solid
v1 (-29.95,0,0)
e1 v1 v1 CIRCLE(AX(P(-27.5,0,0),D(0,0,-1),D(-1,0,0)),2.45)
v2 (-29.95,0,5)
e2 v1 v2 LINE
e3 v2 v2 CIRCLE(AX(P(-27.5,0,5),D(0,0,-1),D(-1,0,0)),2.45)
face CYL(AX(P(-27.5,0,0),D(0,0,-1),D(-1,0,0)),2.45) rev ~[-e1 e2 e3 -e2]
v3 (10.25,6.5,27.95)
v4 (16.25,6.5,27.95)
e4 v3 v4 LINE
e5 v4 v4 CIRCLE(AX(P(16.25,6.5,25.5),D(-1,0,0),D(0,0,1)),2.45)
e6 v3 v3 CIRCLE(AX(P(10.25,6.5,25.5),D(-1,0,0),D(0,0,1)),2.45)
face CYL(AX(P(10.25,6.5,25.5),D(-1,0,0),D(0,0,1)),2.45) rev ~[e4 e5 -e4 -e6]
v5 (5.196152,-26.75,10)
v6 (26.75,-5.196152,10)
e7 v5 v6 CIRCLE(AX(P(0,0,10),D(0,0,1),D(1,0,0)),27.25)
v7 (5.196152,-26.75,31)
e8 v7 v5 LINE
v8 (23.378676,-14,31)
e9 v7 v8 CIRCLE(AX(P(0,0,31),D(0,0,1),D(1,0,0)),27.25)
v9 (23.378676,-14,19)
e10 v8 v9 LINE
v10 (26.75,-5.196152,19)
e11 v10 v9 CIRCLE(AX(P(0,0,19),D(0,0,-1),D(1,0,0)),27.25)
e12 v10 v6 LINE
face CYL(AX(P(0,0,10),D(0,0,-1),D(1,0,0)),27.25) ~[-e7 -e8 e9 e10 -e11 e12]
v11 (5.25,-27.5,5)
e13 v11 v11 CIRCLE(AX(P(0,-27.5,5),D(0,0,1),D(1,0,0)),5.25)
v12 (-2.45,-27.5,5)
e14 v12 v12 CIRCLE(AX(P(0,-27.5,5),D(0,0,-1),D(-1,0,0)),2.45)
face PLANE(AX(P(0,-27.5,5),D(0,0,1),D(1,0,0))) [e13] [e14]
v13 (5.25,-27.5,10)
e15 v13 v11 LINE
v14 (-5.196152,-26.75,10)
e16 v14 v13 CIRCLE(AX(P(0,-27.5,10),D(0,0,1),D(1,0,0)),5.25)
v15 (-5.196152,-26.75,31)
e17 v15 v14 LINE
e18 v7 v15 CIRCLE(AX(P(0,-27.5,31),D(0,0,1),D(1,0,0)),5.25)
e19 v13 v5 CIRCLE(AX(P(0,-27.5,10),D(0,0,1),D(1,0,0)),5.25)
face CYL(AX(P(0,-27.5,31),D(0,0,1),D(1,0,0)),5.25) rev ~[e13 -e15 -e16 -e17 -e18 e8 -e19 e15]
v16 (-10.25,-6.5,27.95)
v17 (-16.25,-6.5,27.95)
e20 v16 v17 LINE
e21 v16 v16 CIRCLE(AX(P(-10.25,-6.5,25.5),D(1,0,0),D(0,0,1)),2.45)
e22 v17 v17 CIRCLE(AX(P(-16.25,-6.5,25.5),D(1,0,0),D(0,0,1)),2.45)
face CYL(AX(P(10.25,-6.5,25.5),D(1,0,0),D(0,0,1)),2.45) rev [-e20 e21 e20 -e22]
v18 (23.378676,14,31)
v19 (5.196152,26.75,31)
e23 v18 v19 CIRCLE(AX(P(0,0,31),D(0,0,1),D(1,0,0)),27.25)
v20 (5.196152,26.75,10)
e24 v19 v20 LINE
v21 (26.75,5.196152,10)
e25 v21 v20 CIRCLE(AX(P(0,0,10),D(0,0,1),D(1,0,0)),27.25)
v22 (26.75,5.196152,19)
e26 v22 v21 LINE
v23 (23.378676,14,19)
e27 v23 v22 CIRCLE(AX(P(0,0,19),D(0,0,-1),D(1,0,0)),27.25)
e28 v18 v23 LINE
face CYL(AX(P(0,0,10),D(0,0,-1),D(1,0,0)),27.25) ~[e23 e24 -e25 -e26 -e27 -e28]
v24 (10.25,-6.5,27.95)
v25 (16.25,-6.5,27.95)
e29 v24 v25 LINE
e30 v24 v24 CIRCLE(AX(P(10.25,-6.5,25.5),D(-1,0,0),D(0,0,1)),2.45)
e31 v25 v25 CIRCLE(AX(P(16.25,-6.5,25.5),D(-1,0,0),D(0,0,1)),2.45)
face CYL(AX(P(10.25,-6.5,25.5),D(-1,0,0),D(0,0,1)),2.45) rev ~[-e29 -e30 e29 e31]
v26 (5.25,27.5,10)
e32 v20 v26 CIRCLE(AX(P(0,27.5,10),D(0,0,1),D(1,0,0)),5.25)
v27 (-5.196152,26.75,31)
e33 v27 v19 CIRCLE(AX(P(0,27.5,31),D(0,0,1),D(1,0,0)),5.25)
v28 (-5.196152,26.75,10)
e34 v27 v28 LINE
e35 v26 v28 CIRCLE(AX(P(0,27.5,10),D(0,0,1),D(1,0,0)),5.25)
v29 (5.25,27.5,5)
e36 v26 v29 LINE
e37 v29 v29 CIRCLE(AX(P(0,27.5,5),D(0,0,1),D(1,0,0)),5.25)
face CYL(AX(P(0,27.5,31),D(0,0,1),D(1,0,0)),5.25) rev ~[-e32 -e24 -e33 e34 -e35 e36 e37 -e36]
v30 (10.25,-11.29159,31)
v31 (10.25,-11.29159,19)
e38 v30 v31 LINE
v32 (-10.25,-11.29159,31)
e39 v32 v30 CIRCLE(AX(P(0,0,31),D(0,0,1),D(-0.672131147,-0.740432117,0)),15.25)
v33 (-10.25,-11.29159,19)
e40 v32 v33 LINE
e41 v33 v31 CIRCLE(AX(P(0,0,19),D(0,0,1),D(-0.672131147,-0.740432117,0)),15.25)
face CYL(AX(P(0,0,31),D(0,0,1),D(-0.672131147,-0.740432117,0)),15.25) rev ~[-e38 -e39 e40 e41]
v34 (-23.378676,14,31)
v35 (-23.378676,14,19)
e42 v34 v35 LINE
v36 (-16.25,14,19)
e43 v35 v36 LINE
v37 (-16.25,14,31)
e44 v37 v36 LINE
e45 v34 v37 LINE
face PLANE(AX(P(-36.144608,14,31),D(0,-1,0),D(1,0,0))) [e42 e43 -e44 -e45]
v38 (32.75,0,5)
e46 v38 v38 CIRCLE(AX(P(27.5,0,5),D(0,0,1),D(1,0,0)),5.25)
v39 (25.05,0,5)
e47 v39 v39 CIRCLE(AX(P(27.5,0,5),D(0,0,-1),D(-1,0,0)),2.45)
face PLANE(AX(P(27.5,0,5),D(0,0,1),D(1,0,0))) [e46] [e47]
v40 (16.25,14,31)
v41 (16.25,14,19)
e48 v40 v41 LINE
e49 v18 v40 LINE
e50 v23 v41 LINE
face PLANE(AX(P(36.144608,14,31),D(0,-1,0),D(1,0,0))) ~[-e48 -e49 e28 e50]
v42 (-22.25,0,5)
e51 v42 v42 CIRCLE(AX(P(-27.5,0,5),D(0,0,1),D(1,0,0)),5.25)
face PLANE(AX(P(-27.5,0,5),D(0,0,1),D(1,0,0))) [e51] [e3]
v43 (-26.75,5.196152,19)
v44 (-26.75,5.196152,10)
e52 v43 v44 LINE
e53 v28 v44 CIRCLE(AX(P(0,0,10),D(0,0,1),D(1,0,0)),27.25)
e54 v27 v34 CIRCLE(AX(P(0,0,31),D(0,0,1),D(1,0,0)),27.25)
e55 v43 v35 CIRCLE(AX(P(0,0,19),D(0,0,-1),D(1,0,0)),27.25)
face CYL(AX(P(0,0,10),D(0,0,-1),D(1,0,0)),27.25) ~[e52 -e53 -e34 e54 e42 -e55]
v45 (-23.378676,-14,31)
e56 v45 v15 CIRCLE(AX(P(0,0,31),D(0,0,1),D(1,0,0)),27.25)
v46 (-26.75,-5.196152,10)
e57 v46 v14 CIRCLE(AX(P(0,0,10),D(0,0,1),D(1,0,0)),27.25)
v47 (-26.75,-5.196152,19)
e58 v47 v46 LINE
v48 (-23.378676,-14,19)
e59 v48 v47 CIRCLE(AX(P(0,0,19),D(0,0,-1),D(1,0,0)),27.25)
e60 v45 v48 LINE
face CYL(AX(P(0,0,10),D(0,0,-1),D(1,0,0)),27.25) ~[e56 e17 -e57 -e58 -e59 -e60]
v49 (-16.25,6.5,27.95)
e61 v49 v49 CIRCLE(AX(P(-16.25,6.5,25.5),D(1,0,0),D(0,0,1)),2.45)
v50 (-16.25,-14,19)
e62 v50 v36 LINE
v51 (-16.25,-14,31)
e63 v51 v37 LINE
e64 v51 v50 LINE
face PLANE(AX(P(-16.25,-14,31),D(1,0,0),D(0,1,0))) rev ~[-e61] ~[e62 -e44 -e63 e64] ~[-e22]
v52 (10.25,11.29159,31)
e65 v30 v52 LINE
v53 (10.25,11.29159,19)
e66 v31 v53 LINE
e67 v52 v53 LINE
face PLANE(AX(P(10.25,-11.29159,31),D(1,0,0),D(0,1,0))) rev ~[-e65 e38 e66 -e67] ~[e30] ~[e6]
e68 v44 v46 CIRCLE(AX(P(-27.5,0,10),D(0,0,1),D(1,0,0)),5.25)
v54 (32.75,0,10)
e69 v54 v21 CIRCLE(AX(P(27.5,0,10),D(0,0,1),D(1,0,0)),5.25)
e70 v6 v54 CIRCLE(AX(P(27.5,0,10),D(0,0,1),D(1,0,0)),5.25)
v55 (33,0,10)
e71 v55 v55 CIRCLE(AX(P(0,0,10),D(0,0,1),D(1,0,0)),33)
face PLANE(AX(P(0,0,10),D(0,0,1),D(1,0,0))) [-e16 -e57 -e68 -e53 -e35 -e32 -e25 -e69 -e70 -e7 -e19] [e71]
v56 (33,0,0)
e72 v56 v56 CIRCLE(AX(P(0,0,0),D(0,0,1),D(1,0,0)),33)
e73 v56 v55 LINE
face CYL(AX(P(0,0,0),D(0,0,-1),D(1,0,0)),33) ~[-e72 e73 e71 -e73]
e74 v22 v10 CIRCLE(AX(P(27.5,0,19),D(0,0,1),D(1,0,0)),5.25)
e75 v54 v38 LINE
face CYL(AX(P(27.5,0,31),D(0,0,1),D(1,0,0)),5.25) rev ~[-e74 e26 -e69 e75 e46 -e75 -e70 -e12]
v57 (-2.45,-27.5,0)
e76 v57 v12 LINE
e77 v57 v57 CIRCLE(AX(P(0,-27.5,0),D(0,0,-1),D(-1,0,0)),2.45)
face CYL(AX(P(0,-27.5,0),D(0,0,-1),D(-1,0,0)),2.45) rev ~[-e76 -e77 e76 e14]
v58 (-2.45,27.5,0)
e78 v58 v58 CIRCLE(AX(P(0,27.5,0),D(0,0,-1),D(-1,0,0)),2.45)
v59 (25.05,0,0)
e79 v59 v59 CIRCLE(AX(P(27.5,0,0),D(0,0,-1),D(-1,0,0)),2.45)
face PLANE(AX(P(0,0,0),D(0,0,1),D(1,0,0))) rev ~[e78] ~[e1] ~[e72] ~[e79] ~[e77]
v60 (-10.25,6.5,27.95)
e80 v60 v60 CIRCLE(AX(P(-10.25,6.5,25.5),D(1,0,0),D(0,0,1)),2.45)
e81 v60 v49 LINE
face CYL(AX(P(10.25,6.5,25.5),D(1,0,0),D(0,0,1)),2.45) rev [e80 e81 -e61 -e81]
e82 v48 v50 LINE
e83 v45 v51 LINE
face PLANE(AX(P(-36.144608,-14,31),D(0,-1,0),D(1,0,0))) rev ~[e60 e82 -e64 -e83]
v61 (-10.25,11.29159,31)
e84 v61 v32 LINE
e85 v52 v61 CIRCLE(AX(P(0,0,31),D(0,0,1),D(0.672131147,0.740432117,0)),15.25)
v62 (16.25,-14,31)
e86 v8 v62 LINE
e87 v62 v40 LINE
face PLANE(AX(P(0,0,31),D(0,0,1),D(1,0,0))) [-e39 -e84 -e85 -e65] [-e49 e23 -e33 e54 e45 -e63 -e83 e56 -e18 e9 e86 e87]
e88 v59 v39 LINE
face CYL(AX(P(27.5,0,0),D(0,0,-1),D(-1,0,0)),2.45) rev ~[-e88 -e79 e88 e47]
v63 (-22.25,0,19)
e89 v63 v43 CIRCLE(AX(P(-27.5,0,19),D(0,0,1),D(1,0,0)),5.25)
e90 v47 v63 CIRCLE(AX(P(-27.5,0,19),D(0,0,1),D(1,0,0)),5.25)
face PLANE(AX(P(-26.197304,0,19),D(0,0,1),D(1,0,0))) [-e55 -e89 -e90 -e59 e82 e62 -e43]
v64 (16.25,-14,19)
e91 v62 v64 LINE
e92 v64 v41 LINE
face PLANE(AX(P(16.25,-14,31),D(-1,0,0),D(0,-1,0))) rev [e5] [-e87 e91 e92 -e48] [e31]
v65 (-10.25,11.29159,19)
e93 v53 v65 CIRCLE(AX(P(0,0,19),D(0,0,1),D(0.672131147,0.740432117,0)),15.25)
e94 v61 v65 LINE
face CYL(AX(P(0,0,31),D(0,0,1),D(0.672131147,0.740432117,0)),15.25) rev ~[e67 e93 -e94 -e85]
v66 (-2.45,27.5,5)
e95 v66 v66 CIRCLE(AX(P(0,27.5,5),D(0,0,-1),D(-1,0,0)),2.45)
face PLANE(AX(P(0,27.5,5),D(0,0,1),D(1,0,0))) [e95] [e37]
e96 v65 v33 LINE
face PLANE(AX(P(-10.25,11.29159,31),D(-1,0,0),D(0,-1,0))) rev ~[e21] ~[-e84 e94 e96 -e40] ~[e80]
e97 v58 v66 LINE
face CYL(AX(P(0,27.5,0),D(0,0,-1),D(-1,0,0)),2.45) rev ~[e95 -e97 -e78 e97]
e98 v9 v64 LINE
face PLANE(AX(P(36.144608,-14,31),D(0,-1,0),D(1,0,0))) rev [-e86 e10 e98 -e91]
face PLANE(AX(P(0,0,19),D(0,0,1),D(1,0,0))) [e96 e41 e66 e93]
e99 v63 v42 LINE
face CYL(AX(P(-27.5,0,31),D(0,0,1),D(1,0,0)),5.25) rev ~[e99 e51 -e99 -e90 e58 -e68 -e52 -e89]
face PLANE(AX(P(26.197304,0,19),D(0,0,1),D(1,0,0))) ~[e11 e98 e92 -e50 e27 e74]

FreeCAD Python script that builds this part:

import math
import FreeCAD as App
import Part
import Sketcher


def add_polygon(sketch, points):
    """Adds a closed chain of lines whose ends are joined by coincident constraints."""
    first, n = sketch.GeometryCount, len(points)
    for a, b in zip(points, points[1:] + points[:1]):
        sketch.addGeometry(Part.LineSegment(App.Vector(*a, 0), App.Vector(*b, 0)), False)
    for i in range(n):
        sketch.addConstraint(Sketcher.Constraint("Coincident", first + i, 2, first + (i + 1) % n, 1))

doc = App.newDocument("Part")
body = doc.addObject("PartDesign::Body", "Body")

# Sketch on XY plane
sketch1 = body.newObject("Sketcher::SketchObject", "Sketch")
sketch1.AttachmentSupport = (doc.getObject("XY_Plane"), [""])
sketch1.MapMode = "FlatFace"
sketch1.addGeometry(Part.Circle(App.Vector(0, 0, 0), App.Vector(0, 0, 1), 33), False)
sketch1.addConstraint([
    Sketcher.Constraint("Coincident", 0, 3, -1, 1),
    Sketcher.Constraint("Diameter", 0, 66.0),
])
pad1 = body.newObject("PartDesign::Pad", "Pad")
pad1.Profile = sketch1
pad1.Length = 10

# Sketch on XY plane
sketch2 = body.newObject("Sketcher::SketchObject", "Sketch001")
sketch2.AttachmentSupport = (doc.getObject("XY_Plane"), [""])
sketch2.MapMode = "FlatFace"
sketch2.AttachmentOffset = App.Placement(App.Vector(0, 0, 10), App.Rotation())
sketch2.addGeometry(Part.Circle(App.Vector(0, 0, 0), App.Vector(0, 0, 1), 27), False)
sketch2.addConstraint([
    Sketcher.Constraint("Coincident", 0, 3, -1, 1),
    Sketcher.Constraint("Diameter", 0, 54.5),
])
pad2 = body.newObject("PartDesign::Pad", "Pad001")
pad2.Profile = sketch2
pad2.Length = 21

# Sketch on XY plane
sketch3 = body.newObject("Sketcher::SketchObject", "Sketch002")
sketch3.AttachmentSupport = (doc.getObject("XY_Plane"), [""])
sketch3.MapMode = "FlatFace"
sketch3.AttachmentOffset = App.Placement(App.Vector(0, 0, 31), App.Rotation())
sketch3.addGeometry([
    Part.LineSegment(App.Vector(-10, 11, 0), App.Vector(-10, -11, 0)),
    Part.ArcOfCircle(Part.Circle(App.Vector(0, 0, 0), App.Vector(0, 0, 1), 15), math.radians(-132), math.radians(-48)),
    Part.LineSegment(App.Vector(10, -11, 0), App.Vector(10, 11, 0)),
    Part.ArcOfCircle(Part.Circle(App.Vector(0, 0, 0), App.Vector(0, 0, 1), 15), math.radians(48), math.radians(132)),
], False)
sketch3.addConstraint([
    Sketcher.Constraint("Coincident", 0, 2, 1, 1),
    Sketcher.Constraint("Coincident", 1, 2, 2, 1),
    Sketcher.Constraint("Coincident", 2, 2, 3, 1),
    Sketcher.Constraint("Coincident", 3, 2, 0, 1),
    Sketcher.Constraint("Vertical", 0),
    Sketcher.Constraint("Vertical", 2),
    Sketcher.Constraint("Coincident", 1, 3, -1, 1),
    Sketcher.Constraint("Coincident", 3, 3, -1, 1),
    Sketcher.Constraint("Equal", 1, 3),
    Sketcher.Constraint("Horizontal", 0, 2, 1, 2),
    Sketcher.Constraint("Radius", 1, 15.25),
    Sketcher.Constraint("DistanceX", 0, 2, 1, 2, 20.5),
])
pocket1 = body.newObject("PartDesign::Pocket", "Pocket")
pocket1.Profile = sketch3
pocket1.Length = 12

# Sketch on XY plane
sketch4 = body.newObject("Sketcher::SketchObject", "Sketch003")
sketch4.AttachmentSupport = (doc.getObject("XY_Plane"), [""])
sketch4.MapMode = "FlatFace"
sketch4.addGeometry([
    Part.Circle(App.Vector(0, 27.5, 0), App.Vector(0, 0, 1), 2.5),
    Part.Circle(App.Vector(27.5, 0, 0), App.Vector(0, 0, 1), 2.5),
    Part.Circle(App.Vector(0, -27.5, 0), App.Vector(0, 0, 1), 2.5),
    Part.Circle(App.Vector(-27.5, 0, 0), App.Vector(0, 0, 1), 2.5),
], False)
sketch4.addConstraint([
    Sketcher.Constraint("Equal", 0, 1),
    Sketcher.Constraint("Equal", 1, 2),
    Sketcher.Constraint("Equal", 2, 3),
    Sketcher.Constraint("Symmetric", 0, 3, 2, 3, -1, 1),
    Sketcher.Constraint("Symmetric", 1, 3, 3, 3, -1, 1),
    Sketcher.Constraint("PointOnObject", 0, 3, -2),
    Sketcher.Constraint("PointOnObject", 1, 3, -1),
    Sketcher.Constraint("Diameter", 0, 4.9),
    Sketcher.Constraint("DistanceY", 2, 3, 0, 3, 55.0),
    Sketcher.Constraint("DistanceX", 3, 3, 1, 3, 55.0),
])
pocket2 = body.newObject("PartDesign::Pocket", "Pocket001")
pocket2.Profile = sketch4
pocket2.Length = 36
pocket2.Reversed = True

# Sketch on YZ plane
sketch5 = body.newObject("Sketcher::SketchObject", "Sketch004")
sketch5.AttachmentSupport = (doc.getObject("YZ_Plane"), [""])
sketch5.MapMode = "FlatFace"
sketch5.AttachmentOffset = App.Placement(App.Vector(0, 0, 10.25), App.Rotation())
sketch5.addGeometry([
    Part.Circle(App.Vector(6.5, 25.5, 0), App.Vector(0, 0, 1), 2.5),
    Part.Circle(App.Vector(-6.5, 25.5, 0), App.Vector(0, 0, 1), 2.5),
], False)
sketch5.addConstraint([
    Sketcher.Constraint("Equal", 0, 1),
    Sketcher.Constraint("Symmetric", 0, 3, 1, 3, -2),
    Sketcher.Constraint("Diameter", 0, 4.9),
    Sketcher.Constraint("DistanceX", 1, 3, 0, 3, 13.0),
    Sketcher.Constraint("DistanceY", -1, 1, 0, 3, 25.5),
])
pocket3 = body.newObject("PartDesign::Pocket", "Pocket002")
pocket3.Profile = sketch5
pocket3.Type = "ThroughAll"
pocket3.Midplane = True

# Sketch on XY plane
sketch6 = body.newObject("Sketcher::SketchObject", "Sketch005")
sketch6.AttachmentSupport = (doc.getObject("XY_Plane"), [""])
sketch6.MapMode = "FlatFace"
sketch6.AttachmentOffset = App.Placement(App.Vector(0, 0, 31), App.Rotation())
add_polygon(sketch6, [(-36, 14), (-36, -14), (-16, -14), (-16, 14)])  # lines 0-3
sketch6.addConstraint([
    Sketcher.Constraint("Vertical", 0),
    Sketcher.Constraint("Horizontal", 1),
    Sketcher.Constraint("Vertical", 2),
    Sketcher.Constraint("Horizontal", 3),
    Sketcher.Constraint("DistanceY", 0, 2, 0, 1, 28.0),
    Sketcher.Constraint("DistanceY", 0, 2, -1, 1, 14.0),
    Sketcher.Constraint("DistanceX", 1, 2, -1, 1, 16.25),
    Sketcher.Constraint("DistanceX", 1, 1, 1, 2, 19.894608),
])
pocket4 = body.newObject("PartDesign::Pocket", "Pocket003")
pocket4.Profile = sketch6
pocket4.Length = 12
doc.recompute()

mirrored = body.newObject("PartDesign::Mirrored", "Mirrored")
mirrored.Originals = [pocket4]
mirrored.MirrorPlane = (doc.getObject("YZ_Plane"), [""])
body.Tip = mirrored

# Sketch on XY plane
sketch7 = body.newObject("Sketcher::SketchObject", "Sketch006")
sketch7.AttachmentSupport = (doc.getObject("XY_Plane"), [""])
sketch7.MapMode = "FlatFace"
sketch7.AttachmentOffset = App.Placement(App.Vector(0, 0, 31), App.Rotation())
sketch7.addGeometry([
    Part.Circle(App.Vector(0, 28, 0), App.Vector(0, 0, 1), 5),
    Part.Circle(App.Vector(28, 0, 0), App.Vector(0, 0, 1), 5),
    Part.Circle(App.Vector(-28, 0, 0), App.Vector(0, 0, 1), 5),
    Part.Circle(App.Vector(0, -28, 0), App.Vector(0, 0, 1), 5),
], False)
sketch7.addConstraint([
    Sketcher.Constraint("Equal", 0, 1),
    Sketcher.Constraint("Equal", 1, 2),
    Sketcher.Constraint("Equal", 2, 3),
    Sketcher.Constraint("Symmetric", 1, 3, 2, 3, -1, 1),
    Sketcher.Constraint("Symmetric", 0, 3, 3, 3, -1, 1),
    Sketcher.Constraint("PointOnObject", 0, 3, -2),
    Sketcher.Constraint("PointOnObject", 1, 3, -1),
    Sketcher.Constraint("Diameter", 0, 10.5),
    Sketcher.Constraint("DistanceX", 2, 3, 1, 3, 55.0),
    Sketcher.Constraint("DistanceY", 3, 3, 0, 3, 55.0),
])
pocket5 = body.newObject("PartDesign::Pocket", "Pocket004")
pocket5.Profile = sketch7
pocket5.Length = 26

doc.recompute()
